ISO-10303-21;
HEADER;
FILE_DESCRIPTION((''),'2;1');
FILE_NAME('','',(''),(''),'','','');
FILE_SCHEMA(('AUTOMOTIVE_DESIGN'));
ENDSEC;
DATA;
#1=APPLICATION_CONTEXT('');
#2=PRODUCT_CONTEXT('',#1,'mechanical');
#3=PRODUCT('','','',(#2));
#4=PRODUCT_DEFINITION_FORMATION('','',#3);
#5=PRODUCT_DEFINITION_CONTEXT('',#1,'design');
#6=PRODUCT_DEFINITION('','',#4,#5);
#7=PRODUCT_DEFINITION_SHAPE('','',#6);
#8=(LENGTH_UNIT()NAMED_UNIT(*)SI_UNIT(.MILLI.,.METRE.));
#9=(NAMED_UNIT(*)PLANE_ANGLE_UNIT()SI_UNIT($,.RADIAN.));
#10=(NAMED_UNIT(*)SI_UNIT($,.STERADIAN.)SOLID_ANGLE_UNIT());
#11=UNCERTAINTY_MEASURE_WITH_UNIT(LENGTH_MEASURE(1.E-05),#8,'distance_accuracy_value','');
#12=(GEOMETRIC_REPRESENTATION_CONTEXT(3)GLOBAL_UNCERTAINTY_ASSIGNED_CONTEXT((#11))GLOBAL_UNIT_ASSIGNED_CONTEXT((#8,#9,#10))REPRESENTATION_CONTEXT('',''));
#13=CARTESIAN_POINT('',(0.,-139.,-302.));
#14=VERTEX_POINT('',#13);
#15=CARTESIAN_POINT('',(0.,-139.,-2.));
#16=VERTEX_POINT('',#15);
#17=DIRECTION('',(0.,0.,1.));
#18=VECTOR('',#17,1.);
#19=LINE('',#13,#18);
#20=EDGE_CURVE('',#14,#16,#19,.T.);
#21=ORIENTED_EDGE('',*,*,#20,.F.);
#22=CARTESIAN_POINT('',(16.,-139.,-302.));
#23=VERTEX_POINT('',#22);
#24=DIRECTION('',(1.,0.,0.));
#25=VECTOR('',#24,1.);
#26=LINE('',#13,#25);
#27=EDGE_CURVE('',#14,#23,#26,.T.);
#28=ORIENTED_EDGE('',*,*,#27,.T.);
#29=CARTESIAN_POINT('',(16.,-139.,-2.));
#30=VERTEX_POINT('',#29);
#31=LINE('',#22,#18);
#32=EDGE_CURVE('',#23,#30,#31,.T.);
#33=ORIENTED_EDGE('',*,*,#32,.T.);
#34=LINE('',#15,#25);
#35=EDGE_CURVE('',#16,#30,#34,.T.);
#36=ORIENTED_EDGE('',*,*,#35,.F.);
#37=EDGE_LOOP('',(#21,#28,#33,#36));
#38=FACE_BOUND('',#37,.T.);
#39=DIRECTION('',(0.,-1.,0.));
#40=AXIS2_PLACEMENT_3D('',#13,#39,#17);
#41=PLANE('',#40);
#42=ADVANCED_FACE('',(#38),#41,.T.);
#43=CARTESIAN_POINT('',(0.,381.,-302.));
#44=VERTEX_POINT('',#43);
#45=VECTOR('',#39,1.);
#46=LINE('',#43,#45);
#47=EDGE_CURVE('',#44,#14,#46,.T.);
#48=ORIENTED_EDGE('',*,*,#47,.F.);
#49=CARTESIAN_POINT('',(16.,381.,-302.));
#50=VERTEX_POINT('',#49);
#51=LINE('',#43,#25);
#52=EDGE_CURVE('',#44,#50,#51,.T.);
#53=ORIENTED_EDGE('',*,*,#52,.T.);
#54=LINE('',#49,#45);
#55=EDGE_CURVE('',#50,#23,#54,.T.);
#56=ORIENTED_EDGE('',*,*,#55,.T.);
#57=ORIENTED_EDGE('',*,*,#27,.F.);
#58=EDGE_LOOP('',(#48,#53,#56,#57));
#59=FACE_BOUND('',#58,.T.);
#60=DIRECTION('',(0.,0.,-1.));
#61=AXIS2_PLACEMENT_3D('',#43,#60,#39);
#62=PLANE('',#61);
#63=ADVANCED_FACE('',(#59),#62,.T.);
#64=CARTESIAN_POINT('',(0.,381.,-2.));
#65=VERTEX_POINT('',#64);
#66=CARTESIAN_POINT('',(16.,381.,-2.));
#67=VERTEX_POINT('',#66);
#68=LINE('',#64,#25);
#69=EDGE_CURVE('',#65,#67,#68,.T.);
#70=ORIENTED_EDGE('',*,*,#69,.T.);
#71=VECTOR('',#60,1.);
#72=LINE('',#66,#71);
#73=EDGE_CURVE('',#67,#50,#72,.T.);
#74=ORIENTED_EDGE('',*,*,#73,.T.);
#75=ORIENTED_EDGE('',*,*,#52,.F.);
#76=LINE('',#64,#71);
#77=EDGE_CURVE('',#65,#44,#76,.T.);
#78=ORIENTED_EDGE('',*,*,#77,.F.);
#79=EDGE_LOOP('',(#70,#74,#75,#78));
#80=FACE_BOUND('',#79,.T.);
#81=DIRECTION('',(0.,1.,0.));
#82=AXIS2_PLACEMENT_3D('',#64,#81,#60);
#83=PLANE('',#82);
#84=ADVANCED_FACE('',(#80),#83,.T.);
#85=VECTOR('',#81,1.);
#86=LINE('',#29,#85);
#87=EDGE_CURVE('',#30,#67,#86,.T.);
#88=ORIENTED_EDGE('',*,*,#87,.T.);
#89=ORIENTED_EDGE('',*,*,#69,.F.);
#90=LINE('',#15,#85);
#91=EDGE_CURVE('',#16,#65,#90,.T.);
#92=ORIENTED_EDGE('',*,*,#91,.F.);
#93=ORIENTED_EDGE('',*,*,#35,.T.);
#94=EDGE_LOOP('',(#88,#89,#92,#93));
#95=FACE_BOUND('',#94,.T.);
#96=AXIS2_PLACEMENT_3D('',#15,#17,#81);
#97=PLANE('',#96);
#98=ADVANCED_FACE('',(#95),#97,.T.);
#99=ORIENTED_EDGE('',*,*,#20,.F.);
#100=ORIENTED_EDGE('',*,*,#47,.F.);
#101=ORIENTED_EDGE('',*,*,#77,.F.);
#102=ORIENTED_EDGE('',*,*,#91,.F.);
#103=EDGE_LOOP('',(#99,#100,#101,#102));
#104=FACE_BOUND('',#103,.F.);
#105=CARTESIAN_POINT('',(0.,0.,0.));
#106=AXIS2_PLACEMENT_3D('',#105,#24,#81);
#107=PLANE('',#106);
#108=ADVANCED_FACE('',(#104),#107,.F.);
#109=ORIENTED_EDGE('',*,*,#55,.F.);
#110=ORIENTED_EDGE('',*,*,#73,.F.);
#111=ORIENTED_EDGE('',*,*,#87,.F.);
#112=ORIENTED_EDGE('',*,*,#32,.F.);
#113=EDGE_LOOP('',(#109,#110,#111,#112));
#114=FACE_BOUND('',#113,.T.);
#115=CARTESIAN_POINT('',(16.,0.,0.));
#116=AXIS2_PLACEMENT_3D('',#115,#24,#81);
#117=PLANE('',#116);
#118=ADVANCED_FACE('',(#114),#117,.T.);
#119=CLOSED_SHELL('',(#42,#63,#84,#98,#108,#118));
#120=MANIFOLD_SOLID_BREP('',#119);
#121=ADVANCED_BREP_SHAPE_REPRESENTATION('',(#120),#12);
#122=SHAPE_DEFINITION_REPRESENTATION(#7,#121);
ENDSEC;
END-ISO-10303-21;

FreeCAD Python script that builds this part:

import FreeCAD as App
import Part
import Sketcher
from FreeCAD import Vector

doc = App.newDocument("Part")
body = doc.addObject("PartDesign::Body", "Body")

# Sketch on YZ plane
sketch1 = body.newObject("Sketcher::SketchObject", "Sketch")
sketch1.AttachmentSupport = (doc.getObject("YZ_Plane"), [""])
sketch1.MapMode = "FlatFace"
sketch1.addGeometry([
    Part.LineSegment(Vector(381, -2, 0), Vector(-139, -2, 0)),
    Part.LineSegment(Vector(-139, -2, 0), Vector(-139, -302, 0)),
    Part.LineSegment(Vector(-139, -302, 0), Vector(381, -302, 0)),
    Part.LineSegment(Vector(381, -302, 0), Vector(381, -2, 0)),
], False)
sketch1.addConstraint([
    Sketcher.Constraint("Coincident", 0, 2, 1, 1),
    Sketcher.Constraint("Coincident", 1, 2, 2, 1),
    Sketcher.Constraint("Coincident", 2, 2, 3, 1),
    Sketcher.Constraint("Coincident", 3, 2, 0, 1),
    Sketcher.Constraint("Horizontal", 0),
    Sketcher.Constraint("Vertical", 1),
    Sketcher.Constraint("Horizontal", 2),
    Sketcher.Constraint("Vertical", 3),
    Sketcher.Constraint("DistanceX", 0, 2, 0, 1, 520.0),
    Sketcher.Constraint("DistanceY", 1, 2, 1, 1, 300.0),
    Sketcher.Constraint("DistanceX", 0, 2, -1, 1, 139.0),
    Sketcher.Constraint("DistanceY", 0, 2, -1, 1, 2.0),
])
pad1 = body.newObject("PartDesign::Pad", "Pad")
pad1.Profile = sketch1
pad1.Length = 16

doc.recompute()
